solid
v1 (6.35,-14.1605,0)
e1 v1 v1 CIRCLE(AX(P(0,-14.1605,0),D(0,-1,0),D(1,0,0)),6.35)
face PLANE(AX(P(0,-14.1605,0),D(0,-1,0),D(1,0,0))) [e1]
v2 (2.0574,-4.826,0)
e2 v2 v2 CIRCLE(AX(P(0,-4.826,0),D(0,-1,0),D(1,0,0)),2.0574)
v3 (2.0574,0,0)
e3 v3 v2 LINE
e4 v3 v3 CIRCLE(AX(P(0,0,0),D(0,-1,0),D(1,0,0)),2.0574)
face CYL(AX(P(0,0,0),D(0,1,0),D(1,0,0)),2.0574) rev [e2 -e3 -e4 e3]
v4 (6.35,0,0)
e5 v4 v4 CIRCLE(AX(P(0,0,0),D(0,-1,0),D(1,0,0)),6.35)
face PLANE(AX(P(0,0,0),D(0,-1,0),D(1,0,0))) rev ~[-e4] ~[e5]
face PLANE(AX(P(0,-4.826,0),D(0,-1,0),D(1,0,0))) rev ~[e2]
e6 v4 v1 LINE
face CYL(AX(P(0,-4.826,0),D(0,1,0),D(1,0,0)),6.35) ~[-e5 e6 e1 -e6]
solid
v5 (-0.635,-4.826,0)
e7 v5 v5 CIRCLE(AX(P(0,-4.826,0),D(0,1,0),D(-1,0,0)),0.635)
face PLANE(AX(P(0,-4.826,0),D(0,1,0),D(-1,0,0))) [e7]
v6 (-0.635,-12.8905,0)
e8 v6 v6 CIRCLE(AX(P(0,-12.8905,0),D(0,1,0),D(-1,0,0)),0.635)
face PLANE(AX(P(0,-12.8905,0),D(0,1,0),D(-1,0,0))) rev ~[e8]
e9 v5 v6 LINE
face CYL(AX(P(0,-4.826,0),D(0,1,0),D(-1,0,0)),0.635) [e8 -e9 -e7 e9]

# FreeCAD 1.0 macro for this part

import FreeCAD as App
import Part
import Sketcher

V = App.Vector
Q = App.Units.Quantity

doc = App.newDocument("Part")
body = doc.addObject("PartDesign::Body", "Body")

sketch1 = body.newObject("Sketcher::SketchObject", "Sketch")
sketch1.AttachmentSupport = (doc.getObject("XZ_Plane"), [""])
sketch1.MapMode = "FlatFace"
sketch1.addGeometry([
    Part.Circle(V(0, 0, 0), V(0, 0, 1), 6.3),
    Part.Circle(V(0, 0, 0), V(0, 0, 1), 2.1),
], False)
sketch1.addConstraint([
    Sketcher.Constraint("Coincident", 0, 3, -1, 1),
    Sketcher.Constraint("Coincident", 1, 3, -1, 1),
    Sketcher.Constraint("Diameter", 0, Q("0.5 in")),
    Sketcher.Constraint("Diameter", 1, Q("0.162 in")),
])
pad1 = body.newObject("PartDesign::Pad", "Pad")
pad1.Profile = sketch1
pad1.Length = Q("0.19 in")

sketch2 = body.newObject("Sketcher::SketchObject", "Sketch001")
sketch2.AttachmentSupport = (doc.getObject("XZ_Plane"), [""])
sketch2.MapMode = "FlatFace"
sketch2.AttachmentOffset = App.Placement(V(0, 0, 0.19 * 25.4), App.Rotation())
sketch2.addGeometry(Part.Circle(V(0, 0, 0), V(0, 0, 1), 6), False)
sketch2.addConstraint([
    Sketcher.Constraint("Coincident", 0, 3, -1, 1),
    Sketcher.Constraint("Diameter", 0, Q("0.5 in")),
])
pad2 = body.newObject("PartDesign::Pad", "Pad001")
pad2.Profile = sketch2
pad2.Length = Q("0.3675 in")
body2 = doc.addObject("PartDesign::Body", "Body001")

sketch3 = body2.newObject("Sketcher::SketchObject", "Sketch002")
sketch3.AttachmentSupport = (doc.getObject("XZ_Plane001"), [""])
sketch3.MapMode = "FlatFace"
sketch3.AttachmentOffset = App.Placement(V(0, 0, 0.19 * 25.4), App.Rotation())
sketch3.addGeometry(Part.Circle(V(0, 0, 0), V(0, 0, 1), 0.6), False)
sketch3.addConstraint([
    Sketcher.Constraint("Coincident", 0, 3, -1, 1),
    Sketcher.Constraint("Diameter", 0, Q("0.05 in")),
])
pad3 = body2.newObject("PartDesign::Pad", "Pad002")
pad3.Profile = sketch3
pad3.Length = Q("0.3175 in")

doc.recompute()
